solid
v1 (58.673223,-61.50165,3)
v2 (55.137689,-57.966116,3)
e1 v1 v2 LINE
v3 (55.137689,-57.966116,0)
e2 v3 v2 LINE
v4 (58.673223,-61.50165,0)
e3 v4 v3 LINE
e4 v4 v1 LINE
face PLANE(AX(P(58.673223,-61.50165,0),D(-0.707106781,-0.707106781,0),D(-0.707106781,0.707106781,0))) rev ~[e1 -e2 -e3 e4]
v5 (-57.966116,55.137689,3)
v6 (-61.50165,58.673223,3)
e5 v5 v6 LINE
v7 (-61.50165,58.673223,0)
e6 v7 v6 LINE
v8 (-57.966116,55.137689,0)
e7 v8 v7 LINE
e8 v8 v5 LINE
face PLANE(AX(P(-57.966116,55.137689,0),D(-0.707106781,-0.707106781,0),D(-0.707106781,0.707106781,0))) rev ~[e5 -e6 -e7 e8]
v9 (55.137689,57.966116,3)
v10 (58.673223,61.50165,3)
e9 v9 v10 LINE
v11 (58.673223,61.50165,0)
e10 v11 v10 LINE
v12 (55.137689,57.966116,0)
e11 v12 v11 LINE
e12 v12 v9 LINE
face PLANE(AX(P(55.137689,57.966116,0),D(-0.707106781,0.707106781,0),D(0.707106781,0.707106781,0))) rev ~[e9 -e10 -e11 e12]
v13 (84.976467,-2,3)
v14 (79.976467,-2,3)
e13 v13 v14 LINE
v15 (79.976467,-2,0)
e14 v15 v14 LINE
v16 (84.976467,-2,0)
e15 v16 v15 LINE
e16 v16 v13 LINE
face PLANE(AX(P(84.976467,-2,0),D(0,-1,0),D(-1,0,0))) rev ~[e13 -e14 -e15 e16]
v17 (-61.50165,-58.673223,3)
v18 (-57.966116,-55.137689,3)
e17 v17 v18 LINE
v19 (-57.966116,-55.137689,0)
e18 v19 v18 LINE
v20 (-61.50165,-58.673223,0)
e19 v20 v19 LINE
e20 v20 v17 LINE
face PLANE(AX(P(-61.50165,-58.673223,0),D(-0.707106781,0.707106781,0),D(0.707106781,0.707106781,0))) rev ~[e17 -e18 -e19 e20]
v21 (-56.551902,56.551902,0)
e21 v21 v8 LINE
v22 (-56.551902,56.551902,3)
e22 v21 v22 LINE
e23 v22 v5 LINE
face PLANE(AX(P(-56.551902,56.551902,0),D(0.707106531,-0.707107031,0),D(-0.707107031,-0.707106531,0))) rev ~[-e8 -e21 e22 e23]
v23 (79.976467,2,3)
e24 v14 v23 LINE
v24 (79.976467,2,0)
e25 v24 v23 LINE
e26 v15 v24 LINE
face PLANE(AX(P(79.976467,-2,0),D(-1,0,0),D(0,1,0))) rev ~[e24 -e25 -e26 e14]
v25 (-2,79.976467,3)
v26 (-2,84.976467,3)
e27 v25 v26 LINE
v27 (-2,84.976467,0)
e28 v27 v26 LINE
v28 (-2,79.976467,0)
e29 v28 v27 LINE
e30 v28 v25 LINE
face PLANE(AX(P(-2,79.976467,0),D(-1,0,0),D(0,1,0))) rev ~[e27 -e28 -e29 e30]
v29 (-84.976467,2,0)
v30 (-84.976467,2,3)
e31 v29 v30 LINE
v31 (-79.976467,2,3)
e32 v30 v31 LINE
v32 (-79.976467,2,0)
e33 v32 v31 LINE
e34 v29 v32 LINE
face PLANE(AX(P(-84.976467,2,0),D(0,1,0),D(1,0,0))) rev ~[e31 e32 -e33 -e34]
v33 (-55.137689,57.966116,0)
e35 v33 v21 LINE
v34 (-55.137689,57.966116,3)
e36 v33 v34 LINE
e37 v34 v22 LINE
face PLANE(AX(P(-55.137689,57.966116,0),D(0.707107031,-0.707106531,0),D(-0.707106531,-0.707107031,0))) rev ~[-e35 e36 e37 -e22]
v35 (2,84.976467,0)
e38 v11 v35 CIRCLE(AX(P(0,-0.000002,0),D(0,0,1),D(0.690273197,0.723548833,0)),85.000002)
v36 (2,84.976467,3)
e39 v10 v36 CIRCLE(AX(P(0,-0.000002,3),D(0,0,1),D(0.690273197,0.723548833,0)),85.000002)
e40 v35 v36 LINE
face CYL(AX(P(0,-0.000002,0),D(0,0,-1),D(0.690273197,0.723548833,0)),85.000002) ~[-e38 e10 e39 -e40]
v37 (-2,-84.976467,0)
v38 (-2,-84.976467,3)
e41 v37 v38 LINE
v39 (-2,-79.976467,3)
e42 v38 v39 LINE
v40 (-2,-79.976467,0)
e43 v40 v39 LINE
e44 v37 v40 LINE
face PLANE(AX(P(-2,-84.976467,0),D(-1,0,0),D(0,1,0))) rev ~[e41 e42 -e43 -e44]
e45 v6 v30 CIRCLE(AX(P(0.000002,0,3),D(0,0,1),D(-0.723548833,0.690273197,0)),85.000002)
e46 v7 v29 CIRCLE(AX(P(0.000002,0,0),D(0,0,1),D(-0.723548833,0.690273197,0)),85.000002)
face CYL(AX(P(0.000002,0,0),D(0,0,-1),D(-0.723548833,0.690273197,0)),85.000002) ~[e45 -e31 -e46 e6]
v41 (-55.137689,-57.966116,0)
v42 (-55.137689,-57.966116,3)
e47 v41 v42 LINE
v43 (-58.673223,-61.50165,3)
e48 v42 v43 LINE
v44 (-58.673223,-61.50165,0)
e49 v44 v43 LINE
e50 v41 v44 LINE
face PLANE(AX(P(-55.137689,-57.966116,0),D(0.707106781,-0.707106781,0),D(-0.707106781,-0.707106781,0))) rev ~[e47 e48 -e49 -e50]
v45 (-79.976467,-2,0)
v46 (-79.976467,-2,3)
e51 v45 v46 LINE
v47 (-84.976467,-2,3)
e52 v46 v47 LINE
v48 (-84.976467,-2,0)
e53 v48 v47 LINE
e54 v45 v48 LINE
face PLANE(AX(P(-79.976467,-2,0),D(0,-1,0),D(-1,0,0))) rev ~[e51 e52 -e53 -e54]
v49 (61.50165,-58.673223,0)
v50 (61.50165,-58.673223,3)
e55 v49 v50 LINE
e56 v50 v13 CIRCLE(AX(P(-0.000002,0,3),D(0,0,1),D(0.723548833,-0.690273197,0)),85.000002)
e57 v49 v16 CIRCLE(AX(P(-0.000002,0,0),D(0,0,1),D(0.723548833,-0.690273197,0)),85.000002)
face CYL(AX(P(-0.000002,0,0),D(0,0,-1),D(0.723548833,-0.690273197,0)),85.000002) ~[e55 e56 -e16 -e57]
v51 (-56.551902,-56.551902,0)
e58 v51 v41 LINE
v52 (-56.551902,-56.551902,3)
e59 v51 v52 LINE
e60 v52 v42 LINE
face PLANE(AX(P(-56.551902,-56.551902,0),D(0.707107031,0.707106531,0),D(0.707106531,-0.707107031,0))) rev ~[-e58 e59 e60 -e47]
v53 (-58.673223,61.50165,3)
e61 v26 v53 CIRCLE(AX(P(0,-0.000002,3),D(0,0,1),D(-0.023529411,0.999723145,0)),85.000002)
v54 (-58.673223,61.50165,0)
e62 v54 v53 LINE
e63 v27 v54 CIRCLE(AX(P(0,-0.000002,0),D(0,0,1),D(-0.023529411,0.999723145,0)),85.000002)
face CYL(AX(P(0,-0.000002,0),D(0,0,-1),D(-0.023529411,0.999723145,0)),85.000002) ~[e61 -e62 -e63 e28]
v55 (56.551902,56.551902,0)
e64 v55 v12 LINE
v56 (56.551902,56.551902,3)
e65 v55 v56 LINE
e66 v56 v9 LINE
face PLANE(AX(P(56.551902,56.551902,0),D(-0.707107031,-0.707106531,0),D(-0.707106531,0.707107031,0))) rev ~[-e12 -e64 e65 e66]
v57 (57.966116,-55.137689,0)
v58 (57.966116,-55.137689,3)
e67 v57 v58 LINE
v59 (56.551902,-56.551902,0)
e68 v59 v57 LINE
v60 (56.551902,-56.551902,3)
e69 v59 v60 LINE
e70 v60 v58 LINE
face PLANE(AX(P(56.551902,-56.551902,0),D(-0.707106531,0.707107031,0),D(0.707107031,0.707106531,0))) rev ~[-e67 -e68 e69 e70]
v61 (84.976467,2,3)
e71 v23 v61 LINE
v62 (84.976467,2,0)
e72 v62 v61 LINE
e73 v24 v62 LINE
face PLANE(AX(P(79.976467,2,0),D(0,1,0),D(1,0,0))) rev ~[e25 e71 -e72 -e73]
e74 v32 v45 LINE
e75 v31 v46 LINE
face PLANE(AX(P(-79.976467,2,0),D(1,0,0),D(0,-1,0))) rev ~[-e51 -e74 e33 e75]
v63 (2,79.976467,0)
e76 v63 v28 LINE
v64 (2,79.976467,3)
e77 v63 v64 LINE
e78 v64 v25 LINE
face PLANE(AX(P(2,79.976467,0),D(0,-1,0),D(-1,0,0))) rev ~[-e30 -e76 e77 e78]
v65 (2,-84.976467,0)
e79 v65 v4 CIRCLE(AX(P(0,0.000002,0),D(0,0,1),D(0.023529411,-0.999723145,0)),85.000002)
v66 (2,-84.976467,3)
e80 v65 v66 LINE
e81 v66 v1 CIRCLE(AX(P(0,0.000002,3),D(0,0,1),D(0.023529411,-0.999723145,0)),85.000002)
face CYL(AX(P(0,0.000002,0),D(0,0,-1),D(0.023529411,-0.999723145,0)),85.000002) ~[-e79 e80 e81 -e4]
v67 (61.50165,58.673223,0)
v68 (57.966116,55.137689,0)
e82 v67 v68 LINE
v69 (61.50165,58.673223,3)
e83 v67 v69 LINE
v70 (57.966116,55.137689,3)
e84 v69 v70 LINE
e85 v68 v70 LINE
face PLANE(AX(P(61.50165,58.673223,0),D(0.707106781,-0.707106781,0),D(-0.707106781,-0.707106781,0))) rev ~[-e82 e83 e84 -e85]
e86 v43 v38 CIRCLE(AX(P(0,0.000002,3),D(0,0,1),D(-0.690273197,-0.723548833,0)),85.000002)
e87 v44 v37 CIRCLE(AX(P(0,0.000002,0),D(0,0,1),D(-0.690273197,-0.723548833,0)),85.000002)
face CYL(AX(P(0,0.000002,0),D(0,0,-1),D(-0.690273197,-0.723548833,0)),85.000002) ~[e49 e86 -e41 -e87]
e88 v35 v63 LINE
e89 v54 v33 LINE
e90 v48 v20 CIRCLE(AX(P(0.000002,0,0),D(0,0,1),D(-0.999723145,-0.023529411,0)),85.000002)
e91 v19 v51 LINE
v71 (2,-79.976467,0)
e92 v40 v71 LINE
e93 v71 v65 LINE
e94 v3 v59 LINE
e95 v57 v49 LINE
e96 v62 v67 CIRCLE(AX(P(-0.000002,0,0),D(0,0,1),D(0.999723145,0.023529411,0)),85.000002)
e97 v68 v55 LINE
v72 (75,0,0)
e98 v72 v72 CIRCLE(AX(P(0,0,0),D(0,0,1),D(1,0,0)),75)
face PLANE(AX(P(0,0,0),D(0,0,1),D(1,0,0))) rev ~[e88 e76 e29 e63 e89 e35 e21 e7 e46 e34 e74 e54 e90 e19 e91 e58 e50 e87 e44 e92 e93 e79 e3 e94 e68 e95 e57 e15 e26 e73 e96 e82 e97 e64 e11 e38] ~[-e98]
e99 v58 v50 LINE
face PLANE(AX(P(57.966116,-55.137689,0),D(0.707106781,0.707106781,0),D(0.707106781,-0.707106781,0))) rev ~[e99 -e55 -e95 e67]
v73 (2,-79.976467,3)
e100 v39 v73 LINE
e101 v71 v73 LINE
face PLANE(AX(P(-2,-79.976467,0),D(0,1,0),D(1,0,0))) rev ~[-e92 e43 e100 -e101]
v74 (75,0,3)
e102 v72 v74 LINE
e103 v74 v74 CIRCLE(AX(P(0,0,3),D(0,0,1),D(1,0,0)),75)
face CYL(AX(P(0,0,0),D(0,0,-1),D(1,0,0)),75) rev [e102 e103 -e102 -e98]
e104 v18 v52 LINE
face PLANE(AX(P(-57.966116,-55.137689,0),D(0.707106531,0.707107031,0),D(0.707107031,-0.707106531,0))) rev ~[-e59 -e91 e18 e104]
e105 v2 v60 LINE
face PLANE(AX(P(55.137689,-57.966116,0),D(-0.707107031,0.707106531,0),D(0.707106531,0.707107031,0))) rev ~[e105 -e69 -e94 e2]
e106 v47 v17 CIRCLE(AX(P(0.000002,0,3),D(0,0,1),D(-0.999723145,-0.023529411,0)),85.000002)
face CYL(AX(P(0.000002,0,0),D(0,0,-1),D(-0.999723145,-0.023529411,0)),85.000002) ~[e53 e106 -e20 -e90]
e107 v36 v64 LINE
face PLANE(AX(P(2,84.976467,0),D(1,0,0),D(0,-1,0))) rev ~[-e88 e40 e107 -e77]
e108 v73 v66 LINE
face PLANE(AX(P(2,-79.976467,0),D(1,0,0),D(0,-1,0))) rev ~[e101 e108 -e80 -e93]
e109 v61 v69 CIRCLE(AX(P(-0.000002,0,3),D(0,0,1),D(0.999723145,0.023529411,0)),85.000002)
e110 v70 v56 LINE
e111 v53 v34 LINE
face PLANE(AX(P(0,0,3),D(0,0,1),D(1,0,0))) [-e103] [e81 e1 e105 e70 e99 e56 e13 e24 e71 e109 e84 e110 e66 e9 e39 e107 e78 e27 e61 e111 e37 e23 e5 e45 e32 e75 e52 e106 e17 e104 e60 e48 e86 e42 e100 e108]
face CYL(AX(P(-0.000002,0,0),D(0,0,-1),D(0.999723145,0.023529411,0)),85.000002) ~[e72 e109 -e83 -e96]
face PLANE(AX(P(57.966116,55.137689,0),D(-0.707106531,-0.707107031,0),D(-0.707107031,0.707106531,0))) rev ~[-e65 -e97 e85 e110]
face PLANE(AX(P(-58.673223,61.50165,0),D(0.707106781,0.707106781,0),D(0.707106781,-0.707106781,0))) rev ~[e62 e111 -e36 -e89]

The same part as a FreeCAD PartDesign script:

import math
import FreeCAD as App
import Part
import Sketcher
from FreeCAD import Vector

doc = App.newDocument("Part")
body = doc.addObject("PartDesign::Body", "Body")

# Sketch on XY plane
sketch1 = body.newObject("Sketcher::SketchObject", "Sketch")
sketch1.AttachmentSupport = (doc.getObject("XY_Plane"), [""])
sketch1.MapMode = "FlatFace"
sketch1.addGeometry([
    Part.LineSegment(Vector(80, 2, 0), Vector(85, 2, 0)),  # 0
    Part.ArcOfCircle(Part.Circle(Vector(0, 0, 0), Vector(0, 0, 1), 85), math.radians(1), math.radians(44)),  # 1
    Part.LineSegment(Vector(61.5, 58.7, 0), Vector(58, 55.1, 0)),  # 2
    Part.LineSegment(Vector(58, 55.1, 0), Vector(56.6, 56.6, 0)),  # 3
    Part.LineSegment(Vector(56.6, 56.6, 0), Vector(55.1, 58, 0)),  # 4
    Part.LineSegment(Vector(55.1, 58, 0), Vector(58.7, 61.5, 0)),  # 5
    Part.ArcOfCircle(Part.Circle(Vector(0, 0, 0), Vector(0, 0, 1), 85), math.radians(46), math.radians(89)),  # 6
    Part.LineSegment(Vector(2, 85, 0), Vector(2, 80, 0)),  # 7
    Part.LineSegment(Vector(2, 80, 0), Vector(-2, 80, 0)),  # 8
    Part.LineSegment(Vector(-2, 80, 0), Vector(-2, 85, 0)),  # 9
    Part.ArcOfCircle(Part.Circle(Vector(0, 0, 0), Vector(0, 0, 1), 85), math.radians(91), math.radians(134)),  # 10
    Part.LineSegment(Vector(-58.7, 61.5, 0), Vector(-55.1, 58, 0)),  # 11
    Part.LineSegment(Vector(-55.1, 58, 0), Vector(-56.6, 56.6, 0)),  # 12
    Part.LineSegment(Vector(-56.6, 56.6, 0), Vector(-58, 55.1, 0)),  # 13
    Part.LineSegment(Vector(-58, 55.1, 0), Vector(-61.5, 58.7, 0)),  # 14
    Part.ArcOfCircle(Part.Circle(Vector(0, 0, 0), Vector(0, 0, 1), 85), math.radians(136), math.radians(179)),  # 15
    Part.LineSegment(Vector(-85, 2, 0), Vector(-80, 2, 0)),  # 16
    Part.LineSegment(Vector(-80, 2, 0), Vector(-80, -2, 0)),  # 17
    Part.LineSegment(Vector(-80, -2, 0), Vector(-85, -2, 0)),  # 18
    Part.ArcOfCircle(Part.Circle(Vector(0, 0, 0), Vector(0, 0, 1), 85), math.radians(-179), math.radians(-136)),  # 19
    Part.LineSegment(Vector(-61.5, -58.7, 0), Vector(-58, -55.1, 0)),  # 20
    Part.LineSegment(Vector(-58, -55.1, 0), Vector(-56.6, -56.6, 0)),  # 21
    Part.LineSegment(Vector(-56.6, -56.6, 0), Vector(-55.1, -58, 0)),  # 22
    Part.LineSegment(Vector(-55.1, -58, 0), Vector(-58.7, -61.5, 0)),  # 23
    Part.ArcOfCircle(Part.Circle(Vector(0, 0, 0), Vector(0, 0, 1), 85), math.radians(-134), math.radians(-91)),  # 24
    Part.LineSegment(Vector(-2, -85, 0), Vector(-2, -80, 0)),  # 25
    Part.LineSegment(Vector(-2, -80, 0), Vector(2, -80, 0)),  # 26
    Part.LineSegment(Vector(2, -80, 0), Vector(2, -85, 0)),  # 27
    Part.ArcOfCircle(Part.Circle(Vector(0, 0, 0), Vector(0, 0, 1), 85), math.radians(-89), math.radians(-46)),  # 28
    Part.LineSegment(Vector(58.7, -61.5, 0), Vector(55.1, -58, 0)),  # 29
    Part.LineSegment(Vector(55.1, -58, 0), Vector(56.6, -56.6, 0)),  # 30
    Part.LineSegment(Vector(56.6, -56.6, 0), Vector(58, -55.1, 0)),  # 31
    Part.LineSegment(Vector(58, -55.1, 0), Vector(61.5, -58.7, 0)),  # 32
    Part.ArcOfCircle(Part.Circle(Vector(0, 0, 0), Vector(0, 0, 1), 85), math.radians(-44), math.radians(-1)),  # 33
    Part.LineSegment(Vector(85, -2, 0), Vector(80, -2, 0)),  # 34
    Part.LineSegment(Vector(80, -2, 0), Vector(80, 2, 0)),  # 35
    Part.Circle(Vector(0, 0, 0), Vector(0, 0, 1), 75),  # 36
], False)
sketch1.addConstraint([
    Sketcher.Constraint("Coincident", 0, 2, 1, 1),
    Sketcher.Constraint("Coincident", 1, 2, 2, 1),
    Sketcher.Constraint("Coincident", 2, 2, 3, 1),
    Sketcher.Constraint("Coincident", 3, 2, 4, 1),
    Sketcher.Constraint("Coincident", 4, 2, 5, 1),
    Sketcher.Constraint("Coincident", 5, 2, 6, 1),
    Sketcher.Constraint("Coincident", 6, 2, 7, 1),
    Sketcher.Constraint("Coincident", 7, 2, 8, 1),
    Sketcher.Constraint("Coincident", 8, 2, 9, 1),
    Sketcher.Constraint("Coincident", 9, 2, 10, 1),
    Sketcher.Constraint("Coincident", 10, 2, 11, 1),
    Sketcher.Constraint("Coincident", 11, 2, 12, 1),
    Sketcher.Constraint("Coincident", 12, 2, 13, 1),
    Sketcher.Constraint("Coincident", 13, 2, 14, 1),
    Sketcher.Constraint("Coincident", 14, 2, 15, 1),
    Sketcher.Constraint("Coincident", 15, 2, 16, 1),
    Sketcher.Constraint("Coincident", 16, 2, 17, 1),
    Sketcher.Constraint("Coincident", 17, 2, 18, 1),
    Sketcher.Constraint("Coincident", 18, 2, 19, 1),
    Sketcher.Constraint("Coincident", 19, 2, 20, 1),
    Sketcher.Constraint("Coincident", 20, 2, 21, 1),
    Sketcher.Constraint("Coincident", 21, 2, 22, 1),
    Sketcher.Constraint("Coincident", 22, 2, 23, 1),
    Sketcher.Constraint("Coincident", 23, 2, 24, 1),
    Sketcher.Constraint("Coincident", 24, 2, 25, 1),
    Sketcher.Constraint("Coincident", 25, 2, 26, 1),
    Sketcher.Constraint("Coincident", 26, 2, 27, 1),
    Sketcher.Constraint("Coincident", 27, 2, 28, 1),
    Sketcher.Constraint("Coincident", 28, 2, 29, 1),
    Sketcher.Constraint("Coincident", 29, 2, 30, 1),
    Sketcher.Constraint("Coincident", 30, 2, 31, 1),
    Sketcher.Constraint("Coincident", 31, 2, 32, 1),
    Sketcher.Constraint("Coincident", 32, 2, 33, 1),
    Sketcher.Constraint("Coincident", 33, 2, 34, 1),
    Sketcher.Constraint("Coincident", 34, 2, 35, 1),
    Sketcher.Constraint("Coincident", 35, 2, 0, 1),
    Sketcher.Constraint("Horizontal", 0),
    Sketcher.Constraint("Vertical", 7),
    Sketcher.Constraint("Horizontal", 8),
    Sketcher.Constraint("Vertical", 9),
    Sketcher.Constraint("Horizontal", 16),
    Sketcher.Constraint("Vertical", 17),
    Sketcher.Constraint("Horizontal", 18),
    Sketcher.Constraint("Vertical", 25),
    Sketcher.Constraint("Horizontal", 26),
    Sketcher.Constraint("Vertical", 27),
    Sketcher.Constraint("Horizontal", 34),
    Sketcher.Constraint("Vertical", 35),
    Sketcher.Constraint("Coincident", 1, 3, -1, 1),
    Sketcher.Constraint("Coincident", 6, 3, -1, 1),
    Sketcher.Constraint("Coincident", 10, 3, -1, 1),
    Sketcher.Constraint("Coincident", 15, 3, -1, 1),
    Sketcher.Constraint("Coincident", 19, 3, -1, 1),
    Sketcher.Constraint("Coincident", 24, 3, -1, 1),
    Sketcher.Constraint("Coincident", 28, 3, -1, 1),
    Sketcher.Constraint("Coincident", 33, 3, -1, 1),
    Sketcher.Constraint("Coincident", 36, 3, -1, 1),
    Sketcher.Constraint("Equal", 1, 6),
    Sketcher.Constraint("Equal", 6, 10),
    Sketcher.Constraint("Equal", 10, 15),
    Sketcher.Constraint("Equal", 15, 19),
    Sketcher.Constraint("Equal", 19, 24),
    Sketcher.Constraint("Equal", 24, 28),
    Sketcher.Constraint("Equal", 28, 33),
    Sketcher.Constraint("Symmetric", 2, 2, 20, 2, -1, 1),
    Sketcher.Constraint("Symmetric", 3, 2, 21, 2, -1, 1),
    Sketcher.Constraint("Symmetric", 4, 2, 22, 2, -1, 1),
    Sketcher.Constraint("Symmetric", 7, 2, 25, 2, -1, 1),
    Sketcher.Constraint("Symmetric", 11, 2, 29, 2, -1, 1),
    Sketcher.Constraint("Symmetric", 12, 2, 30, 2, -1, 1),
    Sketcher.Constraint("Symmetric", 13, 2, 31, 2, -1, 1),
    Sketcher.Constraint("Symmetric", 16, 2, 34, 2, -1, 1),
    Sketcher.Constraint("Symmetric", 4, 2, 11, 2, -2),
    Sketcher.Constraint("Symmetric", 3, 2, 12, 2, -2),
    Sketcher.Constraint("Symmetric", 2, 2, 13, 2, -2),
    Sketcher.Constraint("Perpendicular", 2, 3),
    Sketcher.Constraint("Parallel", 3, 4),
    Sketcher.Constraint("Perpendicular", 4, 5),
    Sketcher.Constraint("Perpendicular", 5, 11),
    Sketcher.Constraint("Perpendicular", 11, 12),
    Sketcher.Constraint("Perpendicular", 13, 14),
    Sketcher.Constraint("Perpendicular", 14, 20),
    Sketcher.Constraint("Perpendicular", 22, 23),
    Sketcher.Constraint("Perpendicular", 23, 29),
    Sketcher.Constraint("Perpendicular", 31, 32),
    Sketcher.Constraint("Horizontal", 6, 2, 9, 2),
    Sketcher.Constraint("Horizontal", 0, 2, 15, 2),
    Sketcher.Constraint("Horizontal", 24, 2, 27, 2),
    Sketcher.Constraint("Horizontal", 18, 2, 33, 2),
    Sketcher.Constraint("Equal", 34, 7),
    Sketcher.Constraint("Equal", 26, 17),
    Sketcher.Constraint("Equal", 3, 4),
    Sketcher.Constraint("Equal", 2, 5),
    Sketcher.Constraint("Diameter", 36, 150.0),
    Sketcher.Constraint("Radius", 1, 85.000002),
    Sketcher.Constraint("DistanceX", 0, 1, 0, 2, 5.0),
    Sketcher.Constraint("DistanceX", 8, 2, 8, 1, 4.0),
    Sketcher.Constraint("Distance", 2, 5.0),
    Sketcher.Constraint("Distance", 3, 2.0),
])
pad1 = body.newObject("PartDesign::Pad", "Pad")
pad1.Profile = sketch1
pad1.Length = 3

doc.recompute()
